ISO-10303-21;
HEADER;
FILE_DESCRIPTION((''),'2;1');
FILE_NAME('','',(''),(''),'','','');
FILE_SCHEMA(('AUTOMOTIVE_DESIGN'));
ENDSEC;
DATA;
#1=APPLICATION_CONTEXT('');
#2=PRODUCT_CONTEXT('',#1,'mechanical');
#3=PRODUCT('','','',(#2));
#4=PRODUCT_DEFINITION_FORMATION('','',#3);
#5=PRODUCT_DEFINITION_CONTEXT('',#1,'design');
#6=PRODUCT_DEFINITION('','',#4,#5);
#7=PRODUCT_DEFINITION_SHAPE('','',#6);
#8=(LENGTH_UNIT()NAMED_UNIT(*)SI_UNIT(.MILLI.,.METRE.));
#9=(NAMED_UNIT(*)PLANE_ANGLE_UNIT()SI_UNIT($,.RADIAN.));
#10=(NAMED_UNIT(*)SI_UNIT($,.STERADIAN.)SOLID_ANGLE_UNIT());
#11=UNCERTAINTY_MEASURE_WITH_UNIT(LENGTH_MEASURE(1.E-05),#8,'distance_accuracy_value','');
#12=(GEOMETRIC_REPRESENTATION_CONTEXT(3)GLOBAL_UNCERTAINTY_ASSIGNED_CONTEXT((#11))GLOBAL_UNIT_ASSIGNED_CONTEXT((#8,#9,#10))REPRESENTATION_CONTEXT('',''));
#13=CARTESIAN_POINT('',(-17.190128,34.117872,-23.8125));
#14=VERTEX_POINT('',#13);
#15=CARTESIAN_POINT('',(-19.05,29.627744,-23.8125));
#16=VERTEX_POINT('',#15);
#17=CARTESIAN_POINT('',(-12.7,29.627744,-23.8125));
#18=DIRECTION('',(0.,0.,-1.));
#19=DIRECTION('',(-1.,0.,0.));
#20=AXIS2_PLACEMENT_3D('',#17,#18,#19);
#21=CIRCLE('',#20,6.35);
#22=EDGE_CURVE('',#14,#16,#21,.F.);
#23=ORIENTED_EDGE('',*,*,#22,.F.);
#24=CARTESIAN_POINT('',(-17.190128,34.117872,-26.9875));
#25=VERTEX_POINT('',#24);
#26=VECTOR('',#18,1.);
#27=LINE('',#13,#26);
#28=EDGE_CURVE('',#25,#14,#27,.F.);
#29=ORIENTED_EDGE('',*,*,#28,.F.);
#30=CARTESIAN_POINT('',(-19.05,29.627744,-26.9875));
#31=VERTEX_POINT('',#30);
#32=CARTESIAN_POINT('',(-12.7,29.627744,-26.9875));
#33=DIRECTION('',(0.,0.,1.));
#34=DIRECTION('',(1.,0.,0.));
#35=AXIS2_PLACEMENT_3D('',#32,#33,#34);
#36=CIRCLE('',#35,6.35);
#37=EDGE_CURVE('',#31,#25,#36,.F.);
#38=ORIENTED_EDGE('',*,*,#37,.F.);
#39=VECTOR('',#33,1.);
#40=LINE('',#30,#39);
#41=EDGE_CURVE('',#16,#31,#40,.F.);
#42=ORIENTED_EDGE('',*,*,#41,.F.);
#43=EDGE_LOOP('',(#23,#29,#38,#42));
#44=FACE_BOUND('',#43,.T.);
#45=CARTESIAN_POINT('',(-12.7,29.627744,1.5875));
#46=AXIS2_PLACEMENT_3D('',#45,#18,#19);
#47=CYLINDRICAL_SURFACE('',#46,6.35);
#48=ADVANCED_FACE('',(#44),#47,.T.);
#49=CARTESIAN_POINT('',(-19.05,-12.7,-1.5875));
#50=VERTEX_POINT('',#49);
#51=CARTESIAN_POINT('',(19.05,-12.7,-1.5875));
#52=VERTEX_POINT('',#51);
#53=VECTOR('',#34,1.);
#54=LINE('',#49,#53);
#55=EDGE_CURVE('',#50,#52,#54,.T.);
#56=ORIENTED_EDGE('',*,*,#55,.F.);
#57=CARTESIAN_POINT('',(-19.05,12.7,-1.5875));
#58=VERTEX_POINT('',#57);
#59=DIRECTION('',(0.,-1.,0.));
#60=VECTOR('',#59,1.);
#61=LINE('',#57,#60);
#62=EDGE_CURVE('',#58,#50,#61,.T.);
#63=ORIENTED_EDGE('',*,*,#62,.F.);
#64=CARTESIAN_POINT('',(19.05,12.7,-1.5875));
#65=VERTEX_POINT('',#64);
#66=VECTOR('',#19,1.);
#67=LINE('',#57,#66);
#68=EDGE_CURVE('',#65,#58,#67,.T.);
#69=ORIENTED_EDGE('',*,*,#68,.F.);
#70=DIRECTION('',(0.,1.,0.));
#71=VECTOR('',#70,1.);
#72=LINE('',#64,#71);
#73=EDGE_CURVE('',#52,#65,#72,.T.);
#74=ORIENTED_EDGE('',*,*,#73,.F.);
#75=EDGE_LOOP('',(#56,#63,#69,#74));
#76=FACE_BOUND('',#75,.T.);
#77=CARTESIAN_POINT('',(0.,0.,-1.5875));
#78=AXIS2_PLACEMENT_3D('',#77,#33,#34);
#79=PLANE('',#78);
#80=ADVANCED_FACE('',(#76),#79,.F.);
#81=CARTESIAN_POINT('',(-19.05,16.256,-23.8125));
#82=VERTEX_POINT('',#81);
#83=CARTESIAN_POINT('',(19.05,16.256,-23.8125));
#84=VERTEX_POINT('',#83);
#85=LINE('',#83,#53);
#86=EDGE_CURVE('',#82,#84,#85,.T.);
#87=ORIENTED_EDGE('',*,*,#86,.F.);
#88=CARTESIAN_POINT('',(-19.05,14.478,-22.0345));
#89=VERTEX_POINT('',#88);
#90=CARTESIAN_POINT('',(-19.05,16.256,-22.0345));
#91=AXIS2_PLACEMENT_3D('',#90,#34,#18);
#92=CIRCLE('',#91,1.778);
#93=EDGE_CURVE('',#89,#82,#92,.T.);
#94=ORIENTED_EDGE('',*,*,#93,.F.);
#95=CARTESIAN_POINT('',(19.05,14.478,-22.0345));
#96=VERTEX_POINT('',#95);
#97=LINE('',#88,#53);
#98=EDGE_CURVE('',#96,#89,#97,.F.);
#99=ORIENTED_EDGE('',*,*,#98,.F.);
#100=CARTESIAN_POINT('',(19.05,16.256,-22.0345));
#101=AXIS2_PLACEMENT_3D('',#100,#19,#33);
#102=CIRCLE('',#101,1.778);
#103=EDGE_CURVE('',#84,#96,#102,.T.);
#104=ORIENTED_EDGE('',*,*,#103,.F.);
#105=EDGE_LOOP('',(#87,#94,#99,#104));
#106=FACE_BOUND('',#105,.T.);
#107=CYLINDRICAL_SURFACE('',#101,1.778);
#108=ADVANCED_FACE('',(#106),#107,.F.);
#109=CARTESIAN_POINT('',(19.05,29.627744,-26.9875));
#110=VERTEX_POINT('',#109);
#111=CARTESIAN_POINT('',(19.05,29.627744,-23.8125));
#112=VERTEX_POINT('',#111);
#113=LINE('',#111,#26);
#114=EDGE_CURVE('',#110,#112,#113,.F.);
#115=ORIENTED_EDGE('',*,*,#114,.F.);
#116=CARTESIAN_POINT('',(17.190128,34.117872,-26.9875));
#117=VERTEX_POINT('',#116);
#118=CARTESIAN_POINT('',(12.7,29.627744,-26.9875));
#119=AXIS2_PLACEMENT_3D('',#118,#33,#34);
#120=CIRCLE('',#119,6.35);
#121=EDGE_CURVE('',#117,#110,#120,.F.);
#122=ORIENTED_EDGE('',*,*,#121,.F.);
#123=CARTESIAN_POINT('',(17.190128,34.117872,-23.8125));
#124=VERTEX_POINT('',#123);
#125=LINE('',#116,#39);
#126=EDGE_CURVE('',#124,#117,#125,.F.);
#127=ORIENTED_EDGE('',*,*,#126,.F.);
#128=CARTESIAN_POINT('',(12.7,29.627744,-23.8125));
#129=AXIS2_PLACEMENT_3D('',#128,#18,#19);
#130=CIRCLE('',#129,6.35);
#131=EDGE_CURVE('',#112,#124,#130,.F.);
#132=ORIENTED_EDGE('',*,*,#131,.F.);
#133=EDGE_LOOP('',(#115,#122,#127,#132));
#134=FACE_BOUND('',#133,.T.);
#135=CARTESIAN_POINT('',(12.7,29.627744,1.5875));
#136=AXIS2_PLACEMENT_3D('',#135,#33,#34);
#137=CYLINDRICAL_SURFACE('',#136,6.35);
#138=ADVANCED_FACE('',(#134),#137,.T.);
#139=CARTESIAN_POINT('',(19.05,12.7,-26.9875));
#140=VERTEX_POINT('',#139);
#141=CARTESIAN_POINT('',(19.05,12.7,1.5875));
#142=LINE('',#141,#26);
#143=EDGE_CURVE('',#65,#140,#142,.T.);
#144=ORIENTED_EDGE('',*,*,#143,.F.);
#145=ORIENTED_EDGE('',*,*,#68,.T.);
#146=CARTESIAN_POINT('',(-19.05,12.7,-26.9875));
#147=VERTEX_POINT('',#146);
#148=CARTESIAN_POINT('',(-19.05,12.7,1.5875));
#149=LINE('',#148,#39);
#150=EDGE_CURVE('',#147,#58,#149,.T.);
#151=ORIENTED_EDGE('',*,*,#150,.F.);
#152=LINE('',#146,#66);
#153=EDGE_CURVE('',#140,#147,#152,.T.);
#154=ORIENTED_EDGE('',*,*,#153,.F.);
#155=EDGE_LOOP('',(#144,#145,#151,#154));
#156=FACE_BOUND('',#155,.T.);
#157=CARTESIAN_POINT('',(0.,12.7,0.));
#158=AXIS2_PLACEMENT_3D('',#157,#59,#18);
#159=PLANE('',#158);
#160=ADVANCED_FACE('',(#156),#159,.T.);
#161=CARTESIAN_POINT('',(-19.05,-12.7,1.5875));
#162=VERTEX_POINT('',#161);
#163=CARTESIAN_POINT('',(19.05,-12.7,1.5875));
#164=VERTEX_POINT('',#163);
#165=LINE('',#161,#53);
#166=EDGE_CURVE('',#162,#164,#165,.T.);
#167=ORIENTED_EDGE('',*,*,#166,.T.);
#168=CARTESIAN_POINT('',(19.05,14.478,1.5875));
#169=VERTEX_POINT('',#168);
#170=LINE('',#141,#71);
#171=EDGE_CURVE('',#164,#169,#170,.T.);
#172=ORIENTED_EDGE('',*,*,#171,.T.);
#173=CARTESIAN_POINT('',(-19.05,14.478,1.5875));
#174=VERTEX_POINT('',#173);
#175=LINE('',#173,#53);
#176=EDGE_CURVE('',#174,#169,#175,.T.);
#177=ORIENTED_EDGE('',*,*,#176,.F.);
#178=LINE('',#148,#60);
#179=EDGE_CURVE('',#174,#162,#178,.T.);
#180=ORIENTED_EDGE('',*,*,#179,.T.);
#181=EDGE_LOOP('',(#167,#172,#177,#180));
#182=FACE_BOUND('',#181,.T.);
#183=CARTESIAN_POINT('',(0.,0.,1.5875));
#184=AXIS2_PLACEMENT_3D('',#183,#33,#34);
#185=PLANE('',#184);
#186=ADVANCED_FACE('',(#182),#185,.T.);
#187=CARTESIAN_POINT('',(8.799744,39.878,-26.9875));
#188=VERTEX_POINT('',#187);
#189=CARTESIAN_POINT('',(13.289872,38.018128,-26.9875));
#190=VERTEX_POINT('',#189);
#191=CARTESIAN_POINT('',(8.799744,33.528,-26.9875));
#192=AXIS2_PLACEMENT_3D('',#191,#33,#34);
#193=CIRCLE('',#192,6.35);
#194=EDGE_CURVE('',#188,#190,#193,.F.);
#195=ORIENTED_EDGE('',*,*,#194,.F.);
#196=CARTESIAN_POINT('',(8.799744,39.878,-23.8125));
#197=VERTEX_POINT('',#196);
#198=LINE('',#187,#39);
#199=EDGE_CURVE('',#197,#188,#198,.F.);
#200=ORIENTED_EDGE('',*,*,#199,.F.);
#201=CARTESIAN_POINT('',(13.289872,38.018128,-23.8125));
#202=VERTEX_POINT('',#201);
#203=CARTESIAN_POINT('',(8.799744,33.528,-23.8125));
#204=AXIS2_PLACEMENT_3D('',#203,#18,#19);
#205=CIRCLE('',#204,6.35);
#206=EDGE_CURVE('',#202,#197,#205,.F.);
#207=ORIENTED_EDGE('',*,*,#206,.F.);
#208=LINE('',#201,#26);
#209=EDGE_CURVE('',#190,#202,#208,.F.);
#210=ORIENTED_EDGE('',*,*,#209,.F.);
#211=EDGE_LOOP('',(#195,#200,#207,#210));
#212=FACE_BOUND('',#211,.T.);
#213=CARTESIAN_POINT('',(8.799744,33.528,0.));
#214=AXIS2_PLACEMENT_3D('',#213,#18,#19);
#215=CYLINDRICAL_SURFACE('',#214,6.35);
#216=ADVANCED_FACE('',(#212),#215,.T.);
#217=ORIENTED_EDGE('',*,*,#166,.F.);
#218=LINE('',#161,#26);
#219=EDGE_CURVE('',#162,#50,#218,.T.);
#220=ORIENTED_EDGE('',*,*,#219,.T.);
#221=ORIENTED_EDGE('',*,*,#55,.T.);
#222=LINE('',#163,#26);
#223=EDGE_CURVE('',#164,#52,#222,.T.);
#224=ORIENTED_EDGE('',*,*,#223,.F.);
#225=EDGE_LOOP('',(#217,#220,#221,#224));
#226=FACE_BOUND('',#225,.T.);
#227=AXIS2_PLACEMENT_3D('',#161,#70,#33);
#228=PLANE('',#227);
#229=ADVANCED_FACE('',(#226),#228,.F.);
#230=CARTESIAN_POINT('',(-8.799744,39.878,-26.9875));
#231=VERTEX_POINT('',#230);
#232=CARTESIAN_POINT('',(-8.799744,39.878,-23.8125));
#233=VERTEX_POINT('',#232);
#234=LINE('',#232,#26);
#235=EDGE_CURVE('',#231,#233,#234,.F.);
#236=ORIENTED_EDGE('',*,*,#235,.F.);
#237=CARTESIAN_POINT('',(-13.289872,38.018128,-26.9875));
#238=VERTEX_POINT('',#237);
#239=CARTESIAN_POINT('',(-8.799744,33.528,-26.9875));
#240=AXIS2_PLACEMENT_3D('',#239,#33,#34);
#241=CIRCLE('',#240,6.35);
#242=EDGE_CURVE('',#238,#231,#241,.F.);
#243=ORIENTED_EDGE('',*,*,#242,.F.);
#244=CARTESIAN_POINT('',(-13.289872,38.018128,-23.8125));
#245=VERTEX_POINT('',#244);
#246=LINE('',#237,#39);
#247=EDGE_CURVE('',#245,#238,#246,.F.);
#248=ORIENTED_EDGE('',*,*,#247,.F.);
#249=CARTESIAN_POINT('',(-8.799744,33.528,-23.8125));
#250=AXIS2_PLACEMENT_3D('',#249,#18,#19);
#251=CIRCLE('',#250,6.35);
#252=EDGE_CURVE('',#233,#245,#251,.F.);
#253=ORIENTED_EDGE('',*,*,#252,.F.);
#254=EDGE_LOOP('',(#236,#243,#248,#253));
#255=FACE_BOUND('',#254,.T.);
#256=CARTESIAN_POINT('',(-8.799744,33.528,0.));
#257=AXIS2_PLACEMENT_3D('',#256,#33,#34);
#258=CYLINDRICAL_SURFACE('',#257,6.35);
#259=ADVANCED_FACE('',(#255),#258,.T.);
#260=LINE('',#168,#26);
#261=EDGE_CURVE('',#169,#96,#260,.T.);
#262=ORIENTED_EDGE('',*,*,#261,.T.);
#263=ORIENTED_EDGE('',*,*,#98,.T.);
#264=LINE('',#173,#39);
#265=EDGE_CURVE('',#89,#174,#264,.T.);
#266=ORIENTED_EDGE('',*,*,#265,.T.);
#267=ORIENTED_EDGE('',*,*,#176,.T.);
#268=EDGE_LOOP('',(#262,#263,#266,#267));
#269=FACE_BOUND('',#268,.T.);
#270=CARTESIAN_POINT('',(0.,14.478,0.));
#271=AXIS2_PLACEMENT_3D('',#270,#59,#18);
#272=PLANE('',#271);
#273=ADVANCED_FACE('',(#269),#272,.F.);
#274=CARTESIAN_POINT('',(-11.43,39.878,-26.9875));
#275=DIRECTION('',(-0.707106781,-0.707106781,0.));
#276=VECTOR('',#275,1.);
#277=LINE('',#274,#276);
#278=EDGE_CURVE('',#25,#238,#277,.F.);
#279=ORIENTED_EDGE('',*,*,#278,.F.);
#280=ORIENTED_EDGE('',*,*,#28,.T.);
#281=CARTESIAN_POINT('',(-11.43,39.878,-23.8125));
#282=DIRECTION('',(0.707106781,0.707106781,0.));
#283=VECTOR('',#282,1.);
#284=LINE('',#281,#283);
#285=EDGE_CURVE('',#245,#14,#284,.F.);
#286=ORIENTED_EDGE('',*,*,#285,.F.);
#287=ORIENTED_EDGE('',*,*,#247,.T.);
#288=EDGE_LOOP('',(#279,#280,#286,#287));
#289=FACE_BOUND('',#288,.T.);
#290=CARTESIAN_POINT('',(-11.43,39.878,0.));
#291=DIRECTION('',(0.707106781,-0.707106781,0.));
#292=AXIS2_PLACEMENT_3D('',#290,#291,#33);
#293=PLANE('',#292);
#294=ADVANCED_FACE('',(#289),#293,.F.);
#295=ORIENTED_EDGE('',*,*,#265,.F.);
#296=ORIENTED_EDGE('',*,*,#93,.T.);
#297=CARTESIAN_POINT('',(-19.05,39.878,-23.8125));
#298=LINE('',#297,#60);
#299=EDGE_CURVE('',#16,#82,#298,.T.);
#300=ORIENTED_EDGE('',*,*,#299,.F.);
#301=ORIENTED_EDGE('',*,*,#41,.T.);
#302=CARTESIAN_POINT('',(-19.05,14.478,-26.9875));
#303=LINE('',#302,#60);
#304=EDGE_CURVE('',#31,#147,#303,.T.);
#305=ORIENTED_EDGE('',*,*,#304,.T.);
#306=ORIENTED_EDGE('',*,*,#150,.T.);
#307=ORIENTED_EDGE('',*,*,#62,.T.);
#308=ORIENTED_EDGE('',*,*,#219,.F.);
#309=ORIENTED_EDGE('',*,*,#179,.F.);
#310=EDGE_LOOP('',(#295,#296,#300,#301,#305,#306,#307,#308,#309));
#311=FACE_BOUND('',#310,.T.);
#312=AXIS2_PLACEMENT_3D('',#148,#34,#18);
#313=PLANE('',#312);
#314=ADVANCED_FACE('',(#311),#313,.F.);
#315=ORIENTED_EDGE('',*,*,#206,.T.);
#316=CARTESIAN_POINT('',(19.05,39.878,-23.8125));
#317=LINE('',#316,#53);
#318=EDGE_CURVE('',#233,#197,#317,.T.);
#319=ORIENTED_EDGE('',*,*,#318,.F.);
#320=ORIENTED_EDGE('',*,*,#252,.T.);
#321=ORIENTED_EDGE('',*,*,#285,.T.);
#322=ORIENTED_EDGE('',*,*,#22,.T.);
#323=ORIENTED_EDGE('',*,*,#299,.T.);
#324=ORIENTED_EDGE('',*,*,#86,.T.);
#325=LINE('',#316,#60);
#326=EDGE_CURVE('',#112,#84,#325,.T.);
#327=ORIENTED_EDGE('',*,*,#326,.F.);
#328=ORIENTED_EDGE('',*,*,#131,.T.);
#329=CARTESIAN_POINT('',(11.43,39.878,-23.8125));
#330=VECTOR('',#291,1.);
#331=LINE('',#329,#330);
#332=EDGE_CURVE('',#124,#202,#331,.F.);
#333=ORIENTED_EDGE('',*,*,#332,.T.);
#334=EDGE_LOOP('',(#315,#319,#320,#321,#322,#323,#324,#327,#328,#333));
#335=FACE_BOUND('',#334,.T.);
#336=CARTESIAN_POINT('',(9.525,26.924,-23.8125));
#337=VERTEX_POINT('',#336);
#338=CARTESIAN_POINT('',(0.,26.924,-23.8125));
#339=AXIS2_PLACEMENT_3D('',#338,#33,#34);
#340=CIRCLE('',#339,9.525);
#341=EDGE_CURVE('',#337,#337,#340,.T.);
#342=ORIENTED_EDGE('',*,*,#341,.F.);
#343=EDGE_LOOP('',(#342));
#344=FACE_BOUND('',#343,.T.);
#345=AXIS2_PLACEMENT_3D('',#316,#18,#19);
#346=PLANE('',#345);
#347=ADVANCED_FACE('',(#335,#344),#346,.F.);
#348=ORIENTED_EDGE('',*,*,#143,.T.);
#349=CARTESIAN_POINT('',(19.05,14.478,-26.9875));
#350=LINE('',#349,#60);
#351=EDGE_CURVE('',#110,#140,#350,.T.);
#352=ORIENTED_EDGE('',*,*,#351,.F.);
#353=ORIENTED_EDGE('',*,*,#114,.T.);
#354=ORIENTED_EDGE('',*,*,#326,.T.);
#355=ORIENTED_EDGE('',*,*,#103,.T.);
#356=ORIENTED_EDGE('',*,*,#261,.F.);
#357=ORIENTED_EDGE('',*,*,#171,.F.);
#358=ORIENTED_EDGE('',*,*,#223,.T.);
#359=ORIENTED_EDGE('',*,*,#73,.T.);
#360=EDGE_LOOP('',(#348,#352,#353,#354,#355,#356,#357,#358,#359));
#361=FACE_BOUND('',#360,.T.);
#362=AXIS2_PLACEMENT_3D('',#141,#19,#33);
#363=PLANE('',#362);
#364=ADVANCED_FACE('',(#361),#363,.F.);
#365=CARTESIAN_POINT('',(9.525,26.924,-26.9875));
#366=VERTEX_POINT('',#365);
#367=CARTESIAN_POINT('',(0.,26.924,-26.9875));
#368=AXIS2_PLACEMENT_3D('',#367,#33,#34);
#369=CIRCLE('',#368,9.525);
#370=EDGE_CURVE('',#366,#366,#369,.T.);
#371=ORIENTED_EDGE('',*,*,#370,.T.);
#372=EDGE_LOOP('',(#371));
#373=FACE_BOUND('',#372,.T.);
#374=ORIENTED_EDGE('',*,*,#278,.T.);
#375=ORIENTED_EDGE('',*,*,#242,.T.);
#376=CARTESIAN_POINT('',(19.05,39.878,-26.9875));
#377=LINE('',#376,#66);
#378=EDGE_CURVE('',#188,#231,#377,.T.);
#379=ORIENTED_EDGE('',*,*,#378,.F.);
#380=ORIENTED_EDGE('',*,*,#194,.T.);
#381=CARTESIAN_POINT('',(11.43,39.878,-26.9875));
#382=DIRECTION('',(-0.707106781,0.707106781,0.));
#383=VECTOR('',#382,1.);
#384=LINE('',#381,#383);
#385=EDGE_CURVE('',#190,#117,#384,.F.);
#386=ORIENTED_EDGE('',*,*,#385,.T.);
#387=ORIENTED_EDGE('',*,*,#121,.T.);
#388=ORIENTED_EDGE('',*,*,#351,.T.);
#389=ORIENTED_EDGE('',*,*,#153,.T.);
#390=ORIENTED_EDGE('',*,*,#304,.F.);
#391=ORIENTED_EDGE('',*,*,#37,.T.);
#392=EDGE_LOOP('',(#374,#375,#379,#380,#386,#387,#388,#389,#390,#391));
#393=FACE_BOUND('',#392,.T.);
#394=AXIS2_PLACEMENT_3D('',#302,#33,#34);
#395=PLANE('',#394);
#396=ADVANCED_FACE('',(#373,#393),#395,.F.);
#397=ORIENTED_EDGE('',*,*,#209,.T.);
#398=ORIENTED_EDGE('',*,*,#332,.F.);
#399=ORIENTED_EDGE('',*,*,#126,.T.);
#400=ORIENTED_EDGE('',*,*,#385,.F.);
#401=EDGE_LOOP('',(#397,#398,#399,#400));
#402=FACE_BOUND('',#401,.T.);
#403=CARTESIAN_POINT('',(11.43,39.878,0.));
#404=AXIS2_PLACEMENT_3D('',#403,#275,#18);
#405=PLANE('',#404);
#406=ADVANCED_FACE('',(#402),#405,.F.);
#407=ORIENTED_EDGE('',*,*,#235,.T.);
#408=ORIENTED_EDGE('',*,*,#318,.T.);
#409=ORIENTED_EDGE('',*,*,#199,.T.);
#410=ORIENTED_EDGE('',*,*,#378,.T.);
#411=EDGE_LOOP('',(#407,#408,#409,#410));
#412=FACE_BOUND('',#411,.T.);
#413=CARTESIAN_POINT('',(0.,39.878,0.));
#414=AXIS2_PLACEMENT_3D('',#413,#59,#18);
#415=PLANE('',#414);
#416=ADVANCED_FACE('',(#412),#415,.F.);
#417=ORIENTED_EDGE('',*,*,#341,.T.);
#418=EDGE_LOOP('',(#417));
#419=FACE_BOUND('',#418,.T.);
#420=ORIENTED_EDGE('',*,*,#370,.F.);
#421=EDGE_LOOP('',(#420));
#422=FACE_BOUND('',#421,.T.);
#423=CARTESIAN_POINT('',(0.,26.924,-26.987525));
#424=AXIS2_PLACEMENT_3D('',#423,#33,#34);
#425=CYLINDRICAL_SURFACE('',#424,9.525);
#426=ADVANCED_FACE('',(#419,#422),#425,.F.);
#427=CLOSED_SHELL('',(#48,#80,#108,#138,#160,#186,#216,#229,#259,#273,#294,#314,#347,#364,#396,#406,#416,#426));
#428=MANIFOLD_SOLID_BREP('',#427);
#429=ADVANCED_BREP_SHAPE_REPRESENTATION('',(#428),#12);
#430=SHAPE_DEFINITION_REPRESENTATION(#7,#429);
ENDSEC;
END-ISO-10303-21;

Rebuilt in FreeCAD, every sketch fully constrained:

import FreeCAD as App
import Part
import Sketcher
from FreeCAD import Vector
Q = App.Units.Quantity


def edges_at(feature, points):
    """Names of the edges that pass closest to the given points."""
    edges = feature.Shape.Edges
    near = lambda p: min(range(len(edges)), key=lambda i: edges[i].distToShape(Part.Vertex(*p))[0])
    return sorted({f"Edge{near(p) + 1}" for p in points})

doc = App.newDocument("Part")
body = doc.addObject("PartDesign::Body", "Body")

sketch1 = body.newObject("Sketcher::SketchObject", "Sketch")
sketch1.AttachmentSupport = (doc.getObject("XY_Plane"), [""])
sketch1.MapMode = "FlatFace"
sketch1.addGeometry([
    Part.LineSegment(Vector(-19, 13, 0), Vector(-19, -13, 0)),
    Part.LineSegment(Vector(-19, -13, 0), Vector(19, -13, 0)),
    Part.LineSegment(Vector(19, -13, 0), Vector(19, 13, 0)),
    Part.LineSegment(Vector(19, 13, 0), Vector(-19, 13, 0)),
], False)
sketch1.addConstraint([
    Sketcher.Constraint("Coincident", 0, 2, 1, 1),
    Sketcher.Constraint("Coincident", 1, 2, 2, 1),
    Sketcher.Constraint("Coincident", 2, 2, 3, 1),
    Sketcher.Constraint("Coincident", 3, 2, 0, 1),
    Sketcher.Constraint("Vertical", 0),
    Sketcher.Constraint("Horizontal", 1),
    Sketcher.Constraint("Vertical", 2),
    Sketcher.Constraint("Horizontal", 3),
    Sketcher.Constraint("Symmetric", 0, 2, 2, 2, -1, 1),
    Sketcher.Constraint("DistanceY", 0, 2, 0, 1, Q("1 in")),
    Sketcher.Constraint("DistanceX", 1, 1, 1, 2, Q("1.5 in")),
])
pad1 = body.newObject("PartDesign::Pad", "Pad")
pad1.Profile = sketch1
pad1.Length = Q("0.125 in")
pad1.Midplane = True

sketch2 = body.newObject("Sketcher::SketchObject", "Sketch001")
sketch2.AttachmentSupport = (doc.getObject("XZ_Plane"), [""])
sketch2.MapMode = "FlatFace"
sketch2.AttachmentOffset = App.Placement(Vector(0, 0, -0.5 * 25.4), App.Rotation())
sketch2.addGeometry([
    Part.LineSegment(Vector(-19, -27, 0), Vector(-19, 2, 0)),
    Part.LineSegment(Vector(-19, 2, 0), Vector(19, 2, 0)),
    Part.LineSegment(Vector(19, 2, 0), Vector(19, -27, 0)),
    Part.LineSegment(Vector(19, -27, 0), Vector(-19, -27, 0)),
], False)
sketch2.addConstraint([
    Sketcher.Constraint("Coincident", 0, 2, 1, 1),
    Sketcher.Constraint("Coincident", 1, 2, 2, 1),
    Sketcher.Constraint("Coincident", 2, 2, 3, 1),
    Sketcher.Constraint("Coincident", 3, 2, 0, 1),
    Sketcher.Constraint("Vertical", 0),
    Sketcher.Constraint("Horizontal", 1),
    Sketcher.Constraint("Vertical", 2),
    Sketcher.Constraint("Horizontal", 3),
    Sketcher.Constraint("DistanceX", 1, 1, 1, 2, Q("1.5 in")),
    Sketcher.Constraint("DistanceY", 0, 1, 0, 2, Q("1.125 in")),
    Sketcher.Constraint("DistanceX", 0, 2, -1, 1, Q("0.75 in")),
    Sketcher.Constraint("DistanceY", -1, 1, 0, 2, Q("0.0625 in")),
])
pad2 = body.newObject("PartDesign::Pad", "Pad001")
pad2.Profile = sketch2
pad2.Length = Q("0.07 in")
pad2.Reversed = True

sketch3 = body.newObject("Sketcher::SketchObject", "Sketch002")
sketch3.AttachmentSupport = (doc.getObject("XZ_Plane"), [""])
sketch3.MapMode = "FlatFace"
sketch3.AttachmentOffset = App.Placement(Vector(0, 0, -0.57 * 25.4), App.Rotation())
sketch3.addGeometry([
    Part.LineSegment(Vector(-19.1, -27, 0), Vector(-19.1, -23.8, 0)),
    Part.LineSegment(Vector(-19.1, -23.8, 0), Vector(19.1, -23.8, 0)),
    Part.LineSegment(Vector(19.1, -23.8, 0), Vector(19.1, -27, 0)),
    Part.LineSegment(Vector(19.1, -27, 0), Vector(-19.1, -27, 0)),
], False)
sketch3.addConstraint([
    Sketcher.Constraint("Coincident", 0, 2, 1, 1),
    Sketcher.Constraint("Coincident", 1, 2, 2, 1),
    Sketcher.Constraint("Coincident", 2, 2, 3, 1),
    Sketcher.Constraint("Coincident", 3, 2, 0, 1),
    Sketcher.Constraint("Vertical", 0),
    Sketcher.Constraint("Horizontal", 1),
    Sketcher.Constraint("Vertical", 2),
    Sketcher.Constraint("Horizontal", 3),
    Sketcher.Constraint("DistanceX", 1, 1, 1, 2, Q("1.5 in")),
    Sketcher.Constraint("DistanceY", 0, 1, 0, 2, Q("0.125 in")),
    Sketcher.Constraint("DistanceX", 0, 2, -1, 1, Q("0.75 in")),
    Sketcher.Constraint("DistanceY", 0, 2, -1, 1, Q("0.9375 in")),
])
pad3 = body.newObject("PartDesign::Pad", "Pad002")
pad3.Profile = sketch3
pad3.Length = Q("1 in")
pad3.Reversed = True

sketch4 = body.newObject("Sketcher::SketchObject", "Sketch003")
sketch4.AttachmentSupport = (doc.getObject("XY_Plane"), [""])
sketch4.MapMode = "FlatFace"
sketch4.AttachmentOffset = App.Placement(Vector(0, 0, -0.9375 * 25.4), App.Rotation())
sketch4.addGeometry(Part.Circle(Vector(0, 27, 0), Vector(0, 0, 1), 10), False)
sketch4.addConstraint([
    Sketcher.Constraint("PointOnObject", 0, 3, -2),
    Sketcher.Constraint("Diameter", 0, Q("0.75 in")),
    Sketcher.Constraint("DistanceY", -1, 1, 0, 3, Q("1.06 in")),
])
pocket1 = body.newObject("PartDesign::Pocket", "Pocket")
pocket1.Profile = sketch4
pocket1.Type = "ThroughAll"
doc.recompute()

chamfer = body.newObject("PartDesign::Chamfer", "Chamfer")
chamfer.Base = (pocket1, edges_at(pocket1, [(-19.05, 39.878, -25.4), (19.05, 39.878, -25.4)]))
chamfer.Size = Q("0.3 in")
doc.recompute()

fillet = body.newObject("PartDesign::Fillet", "Fillet")
fillet.Base = (chamfer, edges_at(chamfer, [
    (-19.05, 32.258, -25.4),
    (-11.43, 39.878, -25.4),
    (19.05, 32.258, -25.4),
    (11.43, 39.878, -25.4),
]))
fillet.Radius = Q("0.25 in")
doc.recompute()

fillet2 = body.newObject("PartDesign::Fillet", "Fillet001")
fillet2.Base = (fillet, edges_at(fillet, [(0, 14.478, -23.812)]))
fillet2.Radius = Q("0.07 in")

doc.recompute()
